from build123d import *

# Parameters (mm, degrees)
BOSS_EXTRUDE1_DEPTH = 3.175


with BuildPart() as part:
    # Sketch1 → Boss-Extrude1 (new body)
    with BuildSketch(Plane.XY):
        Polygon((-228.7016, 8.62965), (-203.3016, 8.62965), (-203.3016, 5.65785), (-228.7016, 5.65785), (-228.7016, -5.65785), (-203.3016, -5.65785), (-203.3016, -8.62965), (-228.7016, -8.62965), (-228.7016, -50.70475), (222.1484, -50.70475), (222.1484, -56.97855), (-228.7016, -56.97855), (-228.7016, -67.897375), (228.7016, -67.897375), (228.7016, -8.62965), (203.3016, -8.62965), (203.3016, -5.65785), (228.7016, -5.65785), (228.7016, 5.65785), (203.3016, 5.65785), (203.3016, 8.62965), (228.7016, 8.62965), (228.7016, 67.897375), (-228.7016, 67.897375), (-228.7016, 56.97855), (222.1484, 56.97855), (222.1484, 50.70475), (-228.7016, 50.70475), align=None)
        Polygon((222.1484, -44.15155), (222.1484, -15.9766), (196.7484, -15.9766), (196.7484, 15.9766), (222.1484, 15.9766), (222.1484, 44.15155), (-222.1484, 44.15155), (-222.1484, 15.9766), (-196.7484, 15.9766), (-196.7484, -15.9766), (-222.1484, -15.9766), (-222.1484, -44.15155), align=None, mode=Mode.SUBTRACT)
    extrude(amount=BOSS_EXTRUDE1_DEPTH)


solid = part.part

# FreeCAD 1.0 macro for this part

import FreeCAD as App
import Part
import Sketcher
Q = App.Units.Quantity


def add_polygon(sketch, points):
    """Adds a closed chain of lines whose ends are joined by coincident constraints."""
    first, n = sketch.GeometryCount, len(points)
    for a, b in zip(points, points[1:] + points[:1]):
        sketch.addGeometry(Part.LineSegment(App.Vector(*a, 0), App.Vector(*b, 0)), False)
    for i in range(n):
        sketch.addConstraint(Sketcher.Constraint("Coincident", first + i, 2, first + (i + 1) % n, 1))

doc = App.newDocument("Part")
body = doc.addObject("PartDesign::Body", "Body")

# Sketch on XY plane
sketch1 = body.newObject("Sketcher::SketchObject", "Sketch")
sketch1.AttachmentSupport = (doc.getObject("XY_Plane"), [""])
sketch1.MapMode = "FlatFace"
add_polygon(sketch1, [(-228.7, 8.6), (-203.3, 8.6), (-203.3, 5.7), (-228.7, 5.7), (-228.7, -5.7), (-203.3, -5.7), (-203.3, -8.6), (-228.7, -8.6), (-228.7, -50.7), (222.1, -50.7), (222.1, -57), (-228.7, -57), (-228.7, -67.9), (228.7, -67.9), (228.7, -8.6), (203.3, -8.6), (203.3, -5.7), (228.7, -5.7), (228.7, 5.7), (203.3, 5.7), (203.3, 8.6), (228.7, 8.6), (228.7, 67.9), (-228.7, 67.9), (-228.7, 57), (222.1, 57), (222.1, 50.7), (-228.7, 50.7)])  # lines 0-27
add_polygon(sketch1, [(222.1, -16), (222.1, -44.2), (-222.1, -44.2), (-222.1, -16), (-196.7, -16), (-196.7, 16), (-222.1, 16), (-222.1, 44.2), (222.1, 44.2), (222.1, 16), (196.7, 16), (196.7, -16)])  # lines 28-39
sketch1.addConstraint(Sketcher.Constraint("Horizontal", 0))
sketch1.addConstraint(Sketcher.Constraint("Vertical", 1))
sketch1.addConstraint(Sketcher.Constraint("Horizontal", 2))
sketch1.addConstraint(Sketcher.Constraint("Vertical", 3))
sketch1.addConstraint(Sketcher.Constraint("Horizontal", 4))
sketch1.addConstraint(Sketcher.Constraint("Vertical", 5))
sketch1.addConstraint(Sketcher.Constraint("Horizontal", 6))
sketch1.addConstraint(Sketcher.Constraint("Vertical", 7))
sketch1.addConstraint(Sketcher.Constraint("Horizontal", 8))
sketch1.addConstraint(Sketcher.Constraint("Vertical", 9))
sketch1.addConstraint(Sketcher.Constraint("Horizontal", 10))
sketch1.addConstraint(Sketcher.Constraint("Vertical", 11))
sketch1.addConstraint(Sketcher.Constraint("Horizontal", 12))
sketch1.addConstraint(Sketcher.Constraint("Vertical", 13))
sketch1.addConstraint(Sketcher.Constraint("Horizontal", 14))
sketch1.addConstraint(Sketcher.Constraint("Vertical", 15))
sketch1.addConstraint(Sketcher.Constraint("Horizontal", 16))
sketch1.addConstraint(Sketcher.Constraint("Vertical", 17))
sketch1.addConstraint(Sketcher.Constraint("Horizontal", 18))
sketch1.addConstraint(Sketcher.Constraint("Vertical", 19))
sketch1.addConstraint(Sketcher.Constraint("Horizontal", 20))
sketch1.addConstraint(Sketcher.Constraint("Vertical", 21))
sketch1.addConstraint(Sketcher.Constraint("Horizontal", 22))
sketch1.addConstraint(Sketcher.Constraint("Vertical", 23))
sketch1.addConstraint(Sketcher.Constraint("Horizontal", 24))
sketch1.addConstraint(Sketcher.Constraint("Vertical", 25))
sketch1.addConstraint(Sketcher.Constraint("Horizontal", 26))
sketch1.addConstraint(Sketcher.Constraint("Vertical", 27))
sketch1.addConstraint(Sketcher.Constraint("Vertical", 28))
sketch1.addConstraint(Sketcher.Constraint("Horizontal", 29))
sketch1.addConstraint(Sketcher.Constraint("Vertical", 30))
sketch1.addConstraint(Sketcher.Constraint("Horizontal", 31))
sketch1.addConstraint(Sketcher.Constraint("Vertical", 32))
sketch1.addConstraint(Sketcher.Constraint("Horizontal", 33))
sketch1.addConstraint(Sketcher.Constraint("Vertical", 34))
sketch1.addConstraint(Sketcher.Constraint("Horizontal", 35))
sketch1.addConstraint(Sketcher.Constraint("Vertical", 36))
sketch1.addConstraint(Sketcher.Constraint("Horizontal", 37))
sketch1.addConstraint(Sketcher.Constraint("Vertical", 38))
sketch1.addConstraint(Sketcher.Constraint("Horizontal", 39))
sketch1.addConstraint(Sketcher.Constraint("Symmetric", 0, 2, 14, 2, -1, 1))
sketch1.addConstraint(Sketcher.Constraint("Symmetric", 2, 2, 16, 2, -1, 1))
sketch1.addConstraint(Sketcher.Constraint("Symmetric", 4, 2, 18, 2, -1, 1))
sketch1.addConstraint(Sketcher.Constraint("Symmetric", 6, 2, 20, 2, -1, 1))
sketch1.addConstraint(Sketcher.Constraint("Symmetric", 11, 2, 21, 2, -1, 1))
sketch1.addConstraint(Sketcher.Constraint("Symmetric", 28, 2, 34, 2, -1, 1))
sketch1.addConstraint(Sketcher.Constraint("Symmetric", 30, 2, 36, 2, -1, 1))
sketch1.addConstraint(Sketcher.Constraint("Symmetric", 32, 2, 38, 2, -1, 1))
sketch1.addConstraint(Sketcher.Constraint("Symmetric", 6, 2, 13, 2, -2))
sketch1.addConstraint(Sketcher.Constraint("Symmetric", 4, 2, 15, 2, -2))
sketch1.addConstraint(Sketcher.Constraint("Symmetric", 33, 2, 36, 2, -2))
sketch1.addConstraint(Sketcher.Constraint("Symmetric", 10, 2, 23, 2, -1))
sketch1.addConstraint(Sketcher.Constraint("Symmetric", 8, 2, 25, 2, -1))
sketch1.addConstraint(Sketcher.Constraint("Vertical", 3, 2, 6, 2))
sketch1.addConstraint(Sketcher.Constraint("Vertical", 23, 2, 26, 2))
sketch1.addConstraint(Sketcher.Constraint("Vertical", 25, 2, 28, 2))
sketch1.addConstraint(Sketcher.Constraint("Equal", 20, 31))
sketch1.addConstraint(Sketcher.Constraint("DistanceX", 0, 1, 0, 2, Q("1 in")))
sketch1.addConstraint(Sketcher.Constraint("DistanceX", 8, 1, 8, 2, Q("17.75 in")))
sketch1.addConstraint(Sketcher.Constraint("DistanceX", 12, 1, 12, 2, Q("18.008 in")))
sketch1.addConstraint(Sketcher.Constraint("DistanceY", 1, 2, 1, 1, Q("0.117 in")))
sketch1.addConstraint(Sketcher.Constraint("DistanceY", 9, 2, 9, 1, Q("0.247 in")))
sketch1.addConstraint(Sketcher.Constraint("DistanceY", 32, 1, 32, 2, Q("1.258 in")))
sketch1.addConstraint(Sketcher.Constraint("DistanceY", 3, 2, 3, 1, Q("0.4455 in")))
sketch1.addConstraint(Sketcher.Constraint("DistanceY", 7, 2, 7, 1, Q("1.6565 in")))
sketch1.addConstraint(Sketcher.Constraint("DistanceY", 8, 2, 28, 2, Q("0.258 in")))
sketch1.addConstraint(Sketcher.Constraint("DistanceY", 11, 2, 11, 1, 10.918825))
pad1 = body.newObject("PartDesign::Pad", "Pad")
pad1.Profile = sketch1
pad1.Length = Q("0.125 in")

doc.recompute()
